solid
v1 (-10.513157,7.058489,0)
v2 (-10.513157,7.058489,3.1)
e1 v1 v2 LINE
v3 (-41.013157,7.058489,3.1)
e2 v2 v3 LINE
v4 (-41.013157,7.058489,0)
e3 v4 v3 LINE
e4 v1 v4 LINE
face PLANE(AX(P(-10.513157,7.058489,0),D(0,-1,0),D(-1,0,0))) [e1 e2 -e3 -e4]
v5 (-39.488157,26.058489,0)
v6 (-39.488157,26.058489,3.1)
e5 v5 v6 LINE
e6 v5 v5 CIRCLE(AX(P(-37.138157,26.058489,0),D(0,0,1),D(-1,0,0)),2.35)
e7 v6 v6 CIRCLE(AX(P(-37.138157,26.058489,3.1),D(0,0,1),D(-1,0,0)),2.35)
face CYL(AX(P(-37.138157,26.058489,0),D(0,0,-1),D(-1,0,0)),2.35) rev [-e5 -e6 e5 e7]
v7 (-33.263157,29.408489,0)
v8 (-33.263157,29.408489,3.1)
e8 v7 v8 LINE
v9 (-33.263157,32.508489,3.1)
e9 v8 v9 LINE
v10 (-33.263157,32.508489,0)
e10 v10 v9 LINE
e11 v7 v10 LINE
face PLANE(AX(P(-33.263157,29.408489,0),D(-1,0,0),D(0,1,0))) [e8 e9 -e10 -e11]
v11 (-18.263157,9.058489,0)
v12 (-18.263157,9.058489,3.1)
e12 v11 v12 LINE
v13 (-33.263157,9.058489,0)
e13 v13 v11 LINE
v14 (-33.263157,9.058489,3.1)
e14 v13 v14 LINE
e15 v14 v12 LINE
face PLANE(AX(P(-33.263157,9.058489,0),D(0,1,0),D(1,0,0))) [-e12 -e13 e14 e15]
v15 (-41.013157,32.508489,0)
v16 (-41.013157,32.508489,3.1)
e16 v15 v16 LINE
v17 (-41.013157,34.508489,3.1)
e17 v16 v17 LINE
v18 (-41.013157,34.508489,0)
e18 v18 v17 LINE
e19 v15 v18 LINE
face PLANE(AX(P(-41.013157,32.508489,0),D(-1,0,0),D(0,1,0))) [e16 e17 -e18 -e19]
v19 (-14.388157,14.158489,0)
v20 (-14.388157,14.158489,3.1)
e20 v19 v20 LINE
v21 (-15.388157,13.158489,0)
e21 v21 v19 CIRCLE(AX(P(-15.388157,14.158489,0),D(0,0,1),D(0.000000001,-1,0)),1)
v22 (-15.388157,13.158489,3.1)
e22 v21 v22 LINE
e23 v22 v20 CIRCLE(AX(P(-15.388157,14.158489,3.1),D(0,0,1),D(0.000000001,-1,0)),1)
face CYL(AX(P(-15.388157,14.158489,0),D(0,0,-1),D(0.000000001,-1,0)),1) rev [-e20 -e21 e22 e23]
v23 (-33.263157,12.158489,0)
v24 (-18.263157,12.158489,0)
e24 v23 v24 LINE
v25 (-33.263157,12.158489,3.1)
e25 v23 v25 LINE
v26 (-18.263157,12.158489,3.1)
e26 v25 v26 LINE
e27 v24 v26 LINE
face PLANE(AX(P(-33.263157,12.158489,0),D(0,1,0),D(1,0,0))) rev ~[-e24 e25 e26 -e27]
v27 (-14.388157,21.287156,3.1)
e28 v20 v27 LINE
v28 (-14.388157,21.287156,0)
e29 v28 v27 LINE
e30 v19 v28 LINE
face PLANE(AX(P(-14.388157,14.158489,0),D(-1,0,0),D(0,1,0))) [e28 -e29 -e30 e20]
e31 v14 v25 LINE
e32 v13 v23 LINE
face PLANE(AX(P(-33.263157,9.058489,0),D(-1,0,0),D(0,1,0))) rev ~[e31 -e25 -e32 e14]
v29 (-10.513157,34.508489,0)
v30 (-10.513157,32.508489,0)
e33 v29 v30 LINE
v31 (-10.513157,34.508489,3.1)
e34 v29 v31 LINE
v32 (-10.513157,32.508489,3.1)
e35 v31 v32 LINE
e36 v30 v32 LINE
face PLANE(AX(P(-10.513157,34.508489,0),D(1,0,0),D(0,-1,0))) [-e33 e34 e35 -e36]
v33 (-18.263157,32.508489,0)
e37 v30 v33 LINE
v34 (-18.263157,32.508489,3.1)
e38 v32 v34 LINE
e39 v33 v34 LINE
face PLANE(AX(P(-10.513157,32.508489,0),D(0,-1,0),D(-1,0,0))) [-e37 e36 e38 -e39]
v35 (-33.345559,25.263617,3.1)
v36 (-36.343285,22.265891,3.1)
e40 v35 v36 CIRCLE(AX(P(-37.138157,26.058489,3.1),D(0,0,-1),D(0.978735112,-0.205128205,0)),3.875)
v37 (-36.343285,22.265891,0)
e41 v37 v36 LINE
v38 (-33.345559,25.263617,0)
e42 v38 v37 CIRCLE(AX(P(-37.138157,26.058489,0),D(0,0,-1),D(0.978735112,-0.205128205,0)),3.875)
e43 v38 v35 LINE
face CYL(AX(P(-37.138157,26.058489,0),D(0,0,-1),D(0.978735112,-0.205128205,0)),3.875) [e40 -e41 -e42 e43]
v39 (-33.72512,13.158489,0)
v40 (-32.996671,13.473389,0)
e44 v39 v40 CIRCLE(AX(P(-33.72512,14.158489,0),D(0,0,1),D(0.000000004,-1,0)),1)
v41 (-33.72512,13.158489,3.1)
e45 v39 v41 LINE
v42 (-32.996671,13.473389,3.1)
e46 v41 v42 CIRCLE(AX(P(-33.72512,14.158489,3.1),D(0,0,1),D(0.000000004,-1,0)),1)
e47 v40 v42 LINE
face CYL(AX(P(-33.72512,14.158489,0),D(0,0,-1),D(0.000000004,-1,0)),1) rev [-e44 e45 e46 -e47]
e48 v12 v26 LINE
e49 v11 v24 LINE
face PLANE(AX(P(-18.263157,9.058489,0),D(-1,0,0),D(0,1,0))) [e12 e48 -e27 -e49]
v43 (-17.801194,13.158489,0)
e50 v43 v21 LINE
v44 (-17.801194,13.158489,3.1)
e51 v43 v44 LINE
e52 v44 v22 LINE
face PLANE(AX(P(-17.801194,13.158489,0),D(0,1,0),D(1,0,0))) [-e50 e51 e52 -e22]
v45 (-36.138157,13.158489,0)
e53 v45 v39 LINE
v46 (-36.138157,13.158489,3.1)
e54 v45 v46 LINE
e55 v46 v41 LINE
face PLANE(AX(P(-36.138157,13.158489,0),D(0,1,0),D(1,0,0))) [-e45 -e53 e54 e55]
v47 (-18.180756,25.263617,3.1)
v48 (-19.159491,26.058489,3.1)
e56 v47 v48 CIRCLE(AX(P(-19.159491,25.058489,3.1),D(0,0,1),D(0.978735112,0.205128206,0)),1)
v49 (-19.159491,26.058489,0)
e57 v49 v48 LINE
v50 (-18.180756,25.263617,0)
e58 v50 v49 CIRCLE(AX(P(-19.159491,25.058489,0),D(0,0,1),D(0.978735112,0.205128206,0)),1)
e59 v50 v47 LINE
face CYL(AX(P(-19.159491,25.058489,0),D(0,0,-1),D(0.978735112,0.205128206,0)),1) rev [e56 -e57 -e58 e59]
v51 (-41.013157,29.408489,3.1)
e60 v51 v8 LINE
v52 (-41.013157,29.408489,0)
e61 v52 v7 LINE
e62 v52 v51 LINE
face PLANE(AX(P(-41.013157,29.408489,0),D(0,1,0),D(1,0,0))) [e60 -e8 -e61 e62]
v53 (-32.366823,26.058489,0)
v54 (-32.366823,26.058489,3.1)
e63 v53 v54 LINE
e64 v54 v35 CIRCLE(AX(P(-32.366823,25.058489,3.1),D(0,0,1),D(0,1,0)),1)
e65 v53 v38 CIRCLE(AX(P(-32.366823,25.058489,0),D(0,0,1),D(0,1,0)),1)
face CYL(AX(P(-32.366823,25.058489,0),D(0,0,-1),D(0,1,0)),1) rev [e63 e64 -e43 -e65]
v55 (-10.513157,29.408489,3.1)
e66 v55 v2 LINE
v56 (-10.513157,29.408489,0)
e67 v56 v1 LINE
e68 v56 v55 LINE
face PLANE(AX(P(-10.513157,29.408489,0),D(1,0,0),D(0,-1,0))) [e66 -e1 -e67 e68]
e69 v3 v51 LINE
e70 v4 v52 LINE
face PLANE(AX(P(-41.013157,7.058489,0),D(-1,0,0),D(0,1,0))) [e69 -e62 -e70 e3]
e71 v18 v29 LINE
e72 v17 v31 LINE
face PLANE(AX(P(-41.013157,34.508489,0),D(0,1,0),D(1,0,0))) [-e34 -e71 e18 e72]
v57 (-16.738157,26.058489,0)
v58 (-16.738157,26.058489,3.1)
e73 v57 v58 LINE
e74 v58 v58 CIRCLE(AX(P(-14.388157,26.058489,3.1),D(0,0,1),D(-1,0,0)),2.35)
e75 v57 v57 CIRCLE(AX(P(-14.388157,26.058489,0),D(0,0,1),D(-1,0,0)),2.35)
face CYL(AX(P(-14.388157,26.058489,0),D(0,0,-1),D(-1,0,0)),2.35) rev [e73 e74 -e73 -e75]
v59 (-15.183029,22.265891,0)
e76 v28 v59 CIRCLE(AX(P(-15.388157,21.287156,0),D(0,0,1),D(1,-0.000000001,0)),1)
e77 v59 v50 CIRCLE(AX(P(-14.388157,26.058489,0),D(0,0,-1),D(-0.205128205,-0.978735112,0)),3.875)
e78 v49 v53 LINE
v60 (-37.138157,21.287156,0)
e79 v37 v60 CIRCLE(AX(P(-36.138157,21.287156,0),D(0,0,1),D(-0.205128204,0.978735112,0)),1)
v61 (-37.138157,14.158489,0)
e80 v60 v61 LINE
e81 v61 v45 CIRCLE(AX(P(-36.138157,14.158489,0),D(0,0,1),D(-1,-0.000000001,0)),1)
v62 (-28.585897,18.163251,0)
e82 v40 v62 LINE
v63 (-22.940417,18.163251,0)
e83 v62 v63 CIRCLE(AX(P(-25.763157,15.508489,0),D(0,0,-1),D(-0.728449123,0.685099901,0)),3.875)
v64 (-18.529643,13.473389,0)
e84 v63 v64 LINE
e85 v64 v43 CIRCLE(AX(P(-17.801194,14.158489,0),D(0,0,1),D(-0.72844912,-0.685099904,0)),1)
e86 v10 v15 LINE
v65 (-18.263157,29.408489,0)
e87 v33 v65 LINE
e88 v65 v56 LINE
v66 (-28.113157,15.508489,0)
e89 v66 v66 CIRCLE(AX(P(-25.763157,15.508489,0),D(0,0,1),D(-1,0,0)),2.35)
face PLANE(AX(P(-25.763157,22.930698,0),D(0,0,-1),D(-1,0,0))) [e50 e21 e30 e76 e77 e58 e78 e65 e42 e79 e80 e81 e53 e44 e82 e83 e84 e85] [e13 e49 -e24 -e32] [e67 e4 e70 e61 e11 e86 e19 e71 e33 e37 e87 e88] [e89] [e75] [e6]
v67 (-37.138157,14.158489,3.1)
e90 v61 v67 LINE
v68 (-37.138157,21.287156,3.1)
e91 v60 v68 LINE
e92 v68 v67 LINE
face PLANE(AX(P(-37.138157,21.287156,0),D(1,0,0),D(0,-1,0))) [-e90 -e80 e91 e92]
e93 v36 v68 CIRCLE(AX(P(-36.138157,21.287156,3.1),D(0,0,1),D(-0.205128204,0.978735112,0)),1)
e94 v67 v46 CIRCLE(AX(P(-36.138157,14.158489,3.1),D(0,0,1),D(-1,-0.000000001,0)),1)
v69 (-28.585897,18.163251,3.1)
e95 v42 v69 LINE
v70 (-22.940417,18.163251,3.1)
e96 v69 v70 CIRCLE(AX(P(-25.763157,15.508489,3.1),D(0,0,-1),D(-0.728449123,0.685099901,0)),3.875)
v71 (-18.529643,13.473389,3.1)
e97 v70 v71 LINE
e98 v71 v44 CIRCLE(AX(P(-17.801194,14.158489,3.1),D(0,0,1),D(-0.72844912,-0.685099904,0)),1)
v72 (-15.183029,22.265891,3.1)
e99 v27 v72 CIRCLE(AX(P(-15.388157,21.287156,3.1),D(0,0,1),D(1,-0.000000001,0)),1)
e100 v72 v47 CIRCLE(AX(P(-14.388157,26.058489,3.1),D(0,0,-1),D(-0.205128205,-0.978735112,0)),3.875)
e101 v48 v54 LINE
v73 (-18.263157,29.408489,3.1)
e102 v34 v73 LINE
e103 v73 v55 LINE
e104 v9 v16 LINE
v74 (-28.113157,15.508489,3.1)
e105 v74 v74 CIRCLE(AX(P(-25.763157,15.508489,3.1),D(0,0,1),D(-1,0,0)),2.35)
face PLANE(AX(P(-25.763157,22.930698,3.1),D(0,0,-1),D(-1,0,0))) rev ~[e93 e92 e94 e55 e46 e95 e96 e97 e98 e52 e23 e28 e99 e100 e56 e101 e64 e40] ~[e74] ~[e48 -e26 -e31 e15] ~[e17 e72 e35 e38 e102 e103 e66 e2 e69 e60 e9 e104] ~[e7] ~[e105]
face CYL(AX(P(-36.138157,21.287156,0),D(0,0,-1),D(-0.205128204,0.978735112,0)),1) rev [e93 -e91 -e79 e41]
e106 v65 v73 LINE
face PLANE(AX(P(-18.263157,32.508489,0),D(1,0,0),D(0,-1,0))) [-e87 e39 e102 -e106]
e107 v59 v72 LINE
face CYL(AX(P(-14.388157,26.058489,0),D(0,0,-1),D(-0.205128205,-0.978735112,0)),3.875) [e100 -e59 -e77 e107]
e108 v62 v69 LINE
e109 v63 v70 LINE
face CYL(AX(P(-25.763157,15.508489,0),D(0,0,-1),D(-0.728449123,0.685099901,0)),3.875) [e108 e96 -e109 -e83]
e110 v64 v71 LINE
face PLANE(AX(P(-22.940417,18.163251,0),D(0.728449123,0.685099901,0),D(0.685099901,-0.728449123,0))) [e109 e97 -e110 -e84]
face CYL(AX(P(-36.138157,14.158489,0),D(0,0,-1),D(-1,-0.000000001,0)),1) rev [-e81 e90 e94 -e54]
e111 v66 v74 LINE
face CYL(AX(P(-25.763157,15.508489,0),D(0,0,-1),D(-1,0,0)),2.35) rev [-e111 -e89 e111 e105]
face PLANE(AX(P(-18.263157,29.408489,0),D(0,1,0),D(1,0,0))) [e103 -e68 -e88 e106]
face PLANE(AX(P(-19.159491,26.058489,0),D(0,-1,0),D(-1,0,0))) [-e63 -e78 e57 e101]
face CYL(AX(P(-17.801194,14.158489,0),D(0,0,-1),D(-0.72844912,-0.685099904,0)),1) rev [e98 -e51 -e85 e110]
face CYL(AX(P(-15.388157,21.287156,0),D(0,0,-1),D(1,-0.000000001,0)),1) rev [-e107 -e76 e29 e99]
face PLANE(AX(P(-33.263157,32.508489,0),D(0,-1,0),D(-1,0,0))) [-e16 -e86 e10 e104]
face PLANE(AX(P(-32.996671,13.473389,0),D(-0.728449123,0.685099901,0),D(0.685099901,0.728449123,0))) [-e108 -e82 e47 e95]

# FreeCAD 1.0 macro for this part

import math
import FreeCAD as App
import Part
import Sketcher
from FreeCAD import Vector
Q = App.Units.Quantity

doc = App.newDocument("Part")
body = doc.addObject("PartDesign::Body", "Body")

sketch1 = body.newObject("Sketcher::SketchObject", "Sketch")
sketch1.AttachmentSupport = (doc.getObject("XY_Plane"), [""])
sketch1.MapMode = "FlatFace"
sketch1.addGeometry([
    Part.LineSegment(Vector(-10.5, 34.5, 0), Vector(-41, 34.5, 0)),
    Part.LineSegment(Vector(-41, 34.5, 0), Vector(-41, 32.5, 0)),
    Part.LineSegment(Vector(-41, 32.5, 0), Vector(-33.3, 32.5, 0)),
    Part.LineSegment(Vector(-33.3, 32.5, 0), Vector(-33.3, 29.4, 0)),
    Part.LineSegment(Vector(-33.3, 29.4, 0), Vector(-41, 29.4, 0)),
    Part.LineSegment(Vector(-41, 29.4, 0), Vector(-41, 7.1, 0)),
    Part.LineSegment(Vector(-41, 7.1, 0), Vector(-10.5, 7.1, 0)),
    Part.LineSegment(Vector(-10.5, 7.1, 0), Vector(-10.5, 29.4, 0)),
    Part.LineSegment(Vector(-10.5, 29.4, 0), Vector(-18.3, 29.4, 0)),
    Part.LineSegment(Vector(-18.3, 29.4, 0), Vector(-18.3, 32.5, 0)),
    Part.LineSegment(Vector(-18.3, 32.5, 0), Vector(-10.5, 32.5, 0)),
    Part.LineSegment(Vector(-10.5, 32.5, 0), Vector(-10.5, 34.5, 0)),
    Part.LineSegment(Vector(-33.3, 9.1, 0), Vector(-33.3, 12.2, 0)),
    Part.LineSegment(Vector(-33.3, 12.2, 0), Vector(-18.3, 12.2, 0)),
    Part.LineSegment(Vector(-18.3, 12.2, 0), Vector(-18.3, 9.1, 0)),
    Part.LineSegment(Vector(-18.3, 9.1, 0), Vector(-33.3, 9.1, 0)),
    Part.Circle(Vector(-25.8, 15.5, 0), Vector(0, 0, 1), 2.4),
    Part.Circle(Vector(-14.4, 26.1, 0), Vector(0, 0, 1), 2.4),
    Part.ArcOfCircle(Part.Circle(Vector(-36.1, 21.3, 0), Vector(0, 0, 1), 1), math.radians(102), math.radians(180)),
    Part.ArcOfCircle(Part.Circle(Vector(-37.1, 26.1, 0), Vector(0, 0, 1), 3.9), math.radians(-78), math.radians(-12)),
    Part.ArcOfCircle(Part.Circle(Vector(-32.4, 25.1, 0), Vector(0, 0, 1), 1), math.radians(90), math.radians(168)),
    Part.LineSegment(Vector(-32.4, 26.1, 0), Vector(-19.2, 26.1, 0)),
    Part.ArcOfCircle(Part.Circle(Vector(-19.2, 25.1, 0), Vector(0, 0, 1), 1), math.radians(12), math.radians(90)),
    Part.ArcOfCircle(Part.Circle(Vector(-14.4, 26.1, 0), Vector(0, 0, 1), 3.9), math.radians(-168), math.radians(-102)),
    Part.ArcOfCircle(Part.Circle(Vector(-15.4, 21.3, 0), Vector(0, 0, 1), 1), math.radians(0), math.radians(78)),
    Part.LineSegment(Vector(-14.4, 21.3, 0), Vector(-14.4, 14.2, 0)),
    Part.ArcOfCircle(Part.Circle(Vector(-15.4, 14.2, 0), Vector(0, 0, 1), 1), math.radians(-90), math.radians(0)),
    Part.LineSegment(Vector(-15.4, 13.2, 0), Vector(-17.8, 13.2, 0)),
    Part.ArcOfCircle(Part.Circle(Vector(-17.8, 14.2, 0), Vector(0, 0, 1), 1), math.radians(-137), math.radians(-90)),
    Part.LineSegment(Vector(-18.5, 13.5, 0), Vector(-22.9, 18.2, 0)),
    Part.ArcOfCircle(Part.Circle(Vector(-25.8, 15.5, 0), Vector(0, 0, 1), 3.9), math.radians(43), math.radians(137)),
    Part.LineSegment(Vector(-28.6, 18.2, 0), Vector(-33, 13.5, 0)),
    Part.ArcOfCircle(Part.Circle(Vector(-33.7, 14.2, 0), Vector(0, 0, 1), 1), math.radians(-90), math.radians(-43)),
    Part.LineSegment(Vector(-33.7, 13.2, 0), Vector(-36.1, 13.2, 0)),
    Part.ArcOfCircle(Part.Circle(Vector(-36.1, 14.2, 0), Vector(0, 0, 1), 1), math.radians(-180), math.radians(-90)),
    Part.LineSegment(Vector(-37.1, 14.2, 0), Vector(-37.1, 21.3, 0)),
    Part.Circle(Vector(-37.1, 26.1, 0), Vector(0, 0, 1), 2.4),
], False)
sketch1.addConstraint([
    Sketcher.Constraint("Coincident", 0, 2, 1, 1),
    Sketcher.Constraint("Coincident", 1, 2, 2, 1),
    Sketcher.Constraint("Coincident", 2, 2, 3, 1),
    Sketcher.Constraint("Coincident", 3, 2, 4, 1),
    Sketcher.Constraint("Coincident", 4, 2, 5, 1),
    Sketcher.Constraint("Coincident", 5, 2, 6, 1),
    Sketcher.Constraint("Coincident", 6, 2, 7, 1),
    Sketcher.Constraint("Coincident", 7, 2, 8, 1),
    Sketcher.Constraint("Coincident", 8, 2, 9, 1),
    Sketcher.Constraint("Coincident", 9, 2, 10, 1),
    Sketcher.Constraint("Coincident", 10, 2, 11, 1),
    Sketcher.Constraint("Coincident", 11, 2, 0, 1),
    Sketcher.Constraint("Coincident", 12, 2, 13, 1),
    Sketcher.Constraint("Coincident", 13, 2, 14, 1),
    Sketcher.Constraint("Coincident", 14, 2, 15, 1),
    Sketcher.Constraint("Coincident", 15, 2, 12, 1),
    Sketcher.Constraint("Tangent", 18, 1, 19, 1),
    Sketcher.Constraint("Tangent", 19, 2, 20, 2),
    Sketcher.Constraint("Tangent", 20, 1, 21, 1),
    Sketcher.Constraint("Tangent", 21, 2, 22, 2),
    Sketcher.Constraint("Tangent", 22, 1, 23, 1),
    Sketcher.Constraint("Tangent", 23, 2, 24, 2),
    Sketcher.Constraint("Tangent", 24, 1, 25, 1),
    Sketcher.Constraint("Tangent", 25, 2, 26, 2),
    Sketcher.Constraint("Tangent", 26, 1, 27, 1),
    Sketcher.Constraint("Tangent", 27, 2, 28, 2),
    Sketcher.Constraint("Tangent", 28, 1, 29, 1),
    Sketcher.Constraint("Tangent", 29, 2, 30, 1),
    Sketcher.Constraint("Tangent", 30, 2, 31, 1),
    Sketcher.Constraint("Tangent", 31, 2, 32, 2),
    Sketcher.Constraint("Tangent", 32, 1, 33, 1),
    Sketcher.Constraint("Tangent", 33, 2, 34, 2),
    Sketcher.Constraint("Tangent", 34, 1, 35, 1),
    Sketcher.Constraint("Tangent", 35, 2, 18, 2),
    Sketcher.Constraint("Horizontal", 0),
    Sketcher.Constraint("Vertical", 1),
    Sketcher.Constraint("Horizontal", 2),
    Sketcher.Constraint("Vertical", 3),
    Sketcher.Constraint("Horizontal", 4),
    Sketcher.Constraint("Vertical", 5),
    Sketcher.Constraint("Horizontal", 6),
    Sketcher.Constraint("Vertical", 7),
    Sketcher.Constraint("Horizontal", 8),
    Sketcher.Constraint("Vertical", 9),
    Sketcher.Constraint("Horizontal", 10),
    Sketcher.Constraint("Vertical", 11),
    Sketcher.Constraint("Vertical", 12),
    Sketcher.Constraint("Horizontal", 13),
    Sketcher.Constraint("Vertical", 14),
    Sketcher.Constraint("Horizontal", 15),
    Sketcher.Constraint("Horizontal", 21),
    Sketcher.Constraint("Vertical", 25),
    Sketcher.Constraint("Horizontal", 27),
    Sketcher.Constraint("Horizontal", 33),
    Sketcher.Constraint("Vertical", 35),
    Sketcher.Constraint("Coincident", 23, 3, 17, 3),
    Sketcher.Constraint("Coincident", 30, 3, 16, 3),
    Sketcher.Constraint("Coincident", 36, 3, 19, 3),
    Sketcher.Constraint("Equal", 16, 17),
    Sketcher.Constraint("Equal", 18, 20),
    Sketcher.Constraint("Equal", 20, 22),
    Sketcher.Constraint("Equal", 19, 23),
    Sketcher.Constraint("Equal", 22, 24),
    Sketcher.Constraint("Equal", 24, 26),
    Sketcher.Constraint("Equal", 26, 28),
    Sketcher.Constraint("Equal", 23, 30),
    Sketcher.Constraint("Equal", 28, 32),
    Sketcher.Constraint("Equal", 32, 34),
    Sketcher.Constraint("Equal", 17, 36),
    Sketcher.Constraint("Horizontal", 17, 3, 19, 3),
    Sketcher.Constraint("Horizontal", 18, 3, 24, 3),
    Sketcher.Constraint("Horizontal", 28, 3, 32, 3),
    Sketcher.Constraint("Horizontal", 4, 2, 7, 2),
    Sketcher.Constraint("Horizontal", 2, 2, 9, 2),
    Sketcher.Constraint("Horizontal", 36, 3, 20, 1),
    Sketcher.Constraint("Horizontal", 29, 2, 30, 2),
    Sketcher.Constraint("Vertical", 1, 2, 4, 2),
    Sketcher.Constraint("Vertical", 7, 2, 10, 2),
    Sketcher.Constraint("Vertical", 3, 2, 12, 2),
    Sketcher.Constraint("Vertical", 9, 2, 13, 2),
    Sketcher.Constraint("Vertical", 23, 3, 24, 1),
    Sketcher.Constraint("Equal", 4, 8),
    Sketcher.Constraint("Equal", 27, 33),
    Sketcher.Constraint("Equal", 9, 12),
    Sketcher.Constraint("Radius", 18, Q("1 mm")),
    Sketcher.Constraint("Diameter", 16, Q("4.7 mm")),
    Sketcher.Constraint("DistanceX", 13, 1, 13, 2, Q("15 mm")),
    Sketcher.Constraint("DistanceY", 1, 2, 1, 1, Q("2 mm")),
    Sketcher.Constraint("DistanceX", 0, 2, 0, 1, Q("30.5 mm")),
    Sketcher.Constraint("DistanceY", 3, 2, 3, 1, Q("3.1 mm")),
    Sketcher.Constraint("Radius", 19, Q("3.875 mm")),
    Sketcher.Constraint("DistanceY", 12, 2, 32, 3, Q("2 mm")),
    Sketcher.Constraint("DistanceY", 6, 2, 14, 2, Q("2 mm")),
    Sketcher.Constraint("DistanceY", 5, 2, 5, 1, Q("22.35 mm")),
    Sketcher.Constraint("DistanceY", 26, 3, 22, 3, Q("10.9 mm")),
    Sketcher.Constraint("DistanceX", 12, 2, 16, 3, Q("7.5 mm")),
    Sketcher.Constraint("DistanceY", 16, 3, 17, 3, Q("10.55 mm")),
    Sketcher.Constraint("DistanceX", 18, 3, 17, 3, Q("21.75 mm")),
    Sketcher.Constraint("DistanceY", 27, 2, 28, 1, Q("0.3149 mm")),
    Sketcher.Constraint("DistanceY", -1, 1, 16, 3, Q("15.508489 mm")),
    Sketcher.Constraint("DistanceX", 22, 3, -1, 1, Q("19.159491 mm")),
])
pad1 = body.newObject("PartDesign::Pad", "Pad")
pad1.Profile = sketch1
pad1.Length = 3.1

doc.recompute()
